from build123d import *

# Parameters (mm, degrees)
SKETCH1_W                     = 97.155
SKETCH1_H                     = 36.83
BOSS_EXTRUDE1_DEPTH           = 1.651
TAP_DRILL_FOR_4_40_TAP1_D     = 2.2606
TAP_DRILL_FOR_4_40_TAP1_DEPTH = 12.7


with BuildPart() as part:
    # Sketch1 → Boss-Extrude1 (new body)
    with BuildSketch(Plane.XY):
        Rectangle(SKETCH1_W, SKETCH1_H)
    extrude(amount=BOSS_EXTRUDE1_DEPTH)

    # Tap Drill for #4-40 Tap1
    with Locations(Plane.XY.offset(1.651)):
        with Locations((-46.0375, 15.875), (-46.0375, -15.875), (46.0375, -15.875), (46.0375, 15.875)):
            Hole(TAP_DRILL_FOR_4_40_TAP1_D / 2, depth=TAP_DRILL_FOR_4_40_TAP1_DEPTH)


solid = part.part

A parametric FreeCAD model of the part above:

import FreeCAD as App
import Part
import Sketcher
from FreeCAD import Vector
Q = App.Units.Quantity

doc = App.newDocument("Part")
body = doc.addObject("PartDesign::Body", "Body")

sketch1 = doc.addObject("Sketcher::SketchObject", "Sketch")
body.addObject(sketch1)
sketch1.AttachmentSupport = (doc.XY_Plane, [""])
sketch1.MapMode = "FlatFace"
sketch1.addGeometry(Part.LineSegment(Vector(-48.5775, 18.415, 0), Vector(-48.5775, -18.415, 0)), False)
sketch1.addGeometry(Part.LineSegment(Vector(-48.5775, -18.415, 0), Vector(48.5775, -18.415, 0)), False)
sketch1.addGeometry(Part.LineSegment(Vector(48.5775, -18.415, 0), Vector(48.5775, 18.415, 0)), False)
sketch1.addGeometry(Part.LineSegment(Vector(48.5775, 18.415, 0), Vector(-48.5775, 18.415, 0)), False)
sketch1.addConstraint(Sketcher.Constraint("Coincident", 0, 2, 1, 1))
sketch1.addConstraint(Sketcher.Constraint("Coincident", 1, 2, 2, 1))
sketch1.addConstraint(Sketcher.Constraint("Coincident", 2, 2, 3, 1))
sketch1.addConstraint(Sketcher.Constraint("Coincident", 3, 2, 0, 1))
sketch1.addConstraint(Sketcher.Constraint("Vertical", 0))
sketch1.addConstraint(Sketcher.Constraint("Horizontal", 1))
sketch1.addConstraint(Sketcher.Constraint("Vertical", 2))
sketch1.addConstraint(Sketcher.Constraint("Horizontal", 3))
sketch1.addConstraint(Sketcher.Constraint("Symmetric", 0, 2, 2, 2, -1, 1))
sketch1.addConstraint(Sketcher.Constraint("DistanceY", 0, 2, 0, 1, Q("1.45 in")))
sketch1.addConstraint(Sketcher.Constraint("DistanceX", 1, 1, 1, 2, Q("3.825 in")))
pad1 = doc.addObject("PartDesign::Pad", "Pad")
body.addObject(pad1)
pad1.Profile = sketch1
pad1.Length = Q("0.065 in")

sketch2 = doc.addObject("Sketcher::SketchObject", "Sketch001")
body.addObject(sketch2)
sketch2.AttachmentSupport = (doc.XY_Plane, [""])
sketch2.MapMode = "FlatFace"
sketch2.AttachmentOffset = App.Placement(Vector(0, 0, 0.065 * 25.4), App.Rotation())
sketch2.addGeometry(Part.Circle(Vector(-46.0375, 15.875, 0), Vector(0, 0, 1), 1.1303), False)
sketch2.addGeometry(Part.Circle(Vector(-46.0375, -15.875, 0), Vector(0, 0, 1), 1.1303), False)
sketch2.addGeometry(Part.Circle(Vector(46.0375, -15.875, 0), Vector(0, 0, 1), 1.1303), False)
sketch2.addGeometry(Part.Circle(Vector(46.0375, 15.875, 0), Vector(0, 0, 1), 1.1303), False)
sketch2.addConstraint(Sketcher.Constraint("Equal", 0, 1))
sketch2.addConstraint(Sketcher.Constraint("Equal", 1, 2))
sketch2.addConstraint(Sketcher.Constraint("Equal", 2, 3))
sketch2.addConstraint(Sketcher.Constraint("Symmetric", 0, 3, 2, 3, -1, 1))
sketch2.addConstraint(Sketcher.Constraint("Symmetric", 1, 3, 3, 3, -1, 1))
sketch2.addConstraint(Sketcher.Constraint("Symmetric", 1, 3, 2, 3, -2))
sketch2.addConstraint(Sketcher.Constraint("Diameter", 0, Q("0.089 in")))
sketch2.addConstraint(Sketcher.Constraint("DistanceY", 1, 3, 0, 3, Q("1.25 in")))
sketch2.addConstraint(Sketcher.Constraint("DistanceX", 0, 3, -1, 1, Q("1.8125 in")))
doc.recompute()
hole = doc.addObject("PartDesign::Hole", "Hole")
body.addObject(hole)
hole.Profile = sketch2
hole.ThreadType = "None"
hole.Diameter = Q("0.089 in")
hole.DepthType = "Dimension"
hole.Depth = Q("0.5 in")
hole.DrillPoint = "Flat"

doc.recompute()
